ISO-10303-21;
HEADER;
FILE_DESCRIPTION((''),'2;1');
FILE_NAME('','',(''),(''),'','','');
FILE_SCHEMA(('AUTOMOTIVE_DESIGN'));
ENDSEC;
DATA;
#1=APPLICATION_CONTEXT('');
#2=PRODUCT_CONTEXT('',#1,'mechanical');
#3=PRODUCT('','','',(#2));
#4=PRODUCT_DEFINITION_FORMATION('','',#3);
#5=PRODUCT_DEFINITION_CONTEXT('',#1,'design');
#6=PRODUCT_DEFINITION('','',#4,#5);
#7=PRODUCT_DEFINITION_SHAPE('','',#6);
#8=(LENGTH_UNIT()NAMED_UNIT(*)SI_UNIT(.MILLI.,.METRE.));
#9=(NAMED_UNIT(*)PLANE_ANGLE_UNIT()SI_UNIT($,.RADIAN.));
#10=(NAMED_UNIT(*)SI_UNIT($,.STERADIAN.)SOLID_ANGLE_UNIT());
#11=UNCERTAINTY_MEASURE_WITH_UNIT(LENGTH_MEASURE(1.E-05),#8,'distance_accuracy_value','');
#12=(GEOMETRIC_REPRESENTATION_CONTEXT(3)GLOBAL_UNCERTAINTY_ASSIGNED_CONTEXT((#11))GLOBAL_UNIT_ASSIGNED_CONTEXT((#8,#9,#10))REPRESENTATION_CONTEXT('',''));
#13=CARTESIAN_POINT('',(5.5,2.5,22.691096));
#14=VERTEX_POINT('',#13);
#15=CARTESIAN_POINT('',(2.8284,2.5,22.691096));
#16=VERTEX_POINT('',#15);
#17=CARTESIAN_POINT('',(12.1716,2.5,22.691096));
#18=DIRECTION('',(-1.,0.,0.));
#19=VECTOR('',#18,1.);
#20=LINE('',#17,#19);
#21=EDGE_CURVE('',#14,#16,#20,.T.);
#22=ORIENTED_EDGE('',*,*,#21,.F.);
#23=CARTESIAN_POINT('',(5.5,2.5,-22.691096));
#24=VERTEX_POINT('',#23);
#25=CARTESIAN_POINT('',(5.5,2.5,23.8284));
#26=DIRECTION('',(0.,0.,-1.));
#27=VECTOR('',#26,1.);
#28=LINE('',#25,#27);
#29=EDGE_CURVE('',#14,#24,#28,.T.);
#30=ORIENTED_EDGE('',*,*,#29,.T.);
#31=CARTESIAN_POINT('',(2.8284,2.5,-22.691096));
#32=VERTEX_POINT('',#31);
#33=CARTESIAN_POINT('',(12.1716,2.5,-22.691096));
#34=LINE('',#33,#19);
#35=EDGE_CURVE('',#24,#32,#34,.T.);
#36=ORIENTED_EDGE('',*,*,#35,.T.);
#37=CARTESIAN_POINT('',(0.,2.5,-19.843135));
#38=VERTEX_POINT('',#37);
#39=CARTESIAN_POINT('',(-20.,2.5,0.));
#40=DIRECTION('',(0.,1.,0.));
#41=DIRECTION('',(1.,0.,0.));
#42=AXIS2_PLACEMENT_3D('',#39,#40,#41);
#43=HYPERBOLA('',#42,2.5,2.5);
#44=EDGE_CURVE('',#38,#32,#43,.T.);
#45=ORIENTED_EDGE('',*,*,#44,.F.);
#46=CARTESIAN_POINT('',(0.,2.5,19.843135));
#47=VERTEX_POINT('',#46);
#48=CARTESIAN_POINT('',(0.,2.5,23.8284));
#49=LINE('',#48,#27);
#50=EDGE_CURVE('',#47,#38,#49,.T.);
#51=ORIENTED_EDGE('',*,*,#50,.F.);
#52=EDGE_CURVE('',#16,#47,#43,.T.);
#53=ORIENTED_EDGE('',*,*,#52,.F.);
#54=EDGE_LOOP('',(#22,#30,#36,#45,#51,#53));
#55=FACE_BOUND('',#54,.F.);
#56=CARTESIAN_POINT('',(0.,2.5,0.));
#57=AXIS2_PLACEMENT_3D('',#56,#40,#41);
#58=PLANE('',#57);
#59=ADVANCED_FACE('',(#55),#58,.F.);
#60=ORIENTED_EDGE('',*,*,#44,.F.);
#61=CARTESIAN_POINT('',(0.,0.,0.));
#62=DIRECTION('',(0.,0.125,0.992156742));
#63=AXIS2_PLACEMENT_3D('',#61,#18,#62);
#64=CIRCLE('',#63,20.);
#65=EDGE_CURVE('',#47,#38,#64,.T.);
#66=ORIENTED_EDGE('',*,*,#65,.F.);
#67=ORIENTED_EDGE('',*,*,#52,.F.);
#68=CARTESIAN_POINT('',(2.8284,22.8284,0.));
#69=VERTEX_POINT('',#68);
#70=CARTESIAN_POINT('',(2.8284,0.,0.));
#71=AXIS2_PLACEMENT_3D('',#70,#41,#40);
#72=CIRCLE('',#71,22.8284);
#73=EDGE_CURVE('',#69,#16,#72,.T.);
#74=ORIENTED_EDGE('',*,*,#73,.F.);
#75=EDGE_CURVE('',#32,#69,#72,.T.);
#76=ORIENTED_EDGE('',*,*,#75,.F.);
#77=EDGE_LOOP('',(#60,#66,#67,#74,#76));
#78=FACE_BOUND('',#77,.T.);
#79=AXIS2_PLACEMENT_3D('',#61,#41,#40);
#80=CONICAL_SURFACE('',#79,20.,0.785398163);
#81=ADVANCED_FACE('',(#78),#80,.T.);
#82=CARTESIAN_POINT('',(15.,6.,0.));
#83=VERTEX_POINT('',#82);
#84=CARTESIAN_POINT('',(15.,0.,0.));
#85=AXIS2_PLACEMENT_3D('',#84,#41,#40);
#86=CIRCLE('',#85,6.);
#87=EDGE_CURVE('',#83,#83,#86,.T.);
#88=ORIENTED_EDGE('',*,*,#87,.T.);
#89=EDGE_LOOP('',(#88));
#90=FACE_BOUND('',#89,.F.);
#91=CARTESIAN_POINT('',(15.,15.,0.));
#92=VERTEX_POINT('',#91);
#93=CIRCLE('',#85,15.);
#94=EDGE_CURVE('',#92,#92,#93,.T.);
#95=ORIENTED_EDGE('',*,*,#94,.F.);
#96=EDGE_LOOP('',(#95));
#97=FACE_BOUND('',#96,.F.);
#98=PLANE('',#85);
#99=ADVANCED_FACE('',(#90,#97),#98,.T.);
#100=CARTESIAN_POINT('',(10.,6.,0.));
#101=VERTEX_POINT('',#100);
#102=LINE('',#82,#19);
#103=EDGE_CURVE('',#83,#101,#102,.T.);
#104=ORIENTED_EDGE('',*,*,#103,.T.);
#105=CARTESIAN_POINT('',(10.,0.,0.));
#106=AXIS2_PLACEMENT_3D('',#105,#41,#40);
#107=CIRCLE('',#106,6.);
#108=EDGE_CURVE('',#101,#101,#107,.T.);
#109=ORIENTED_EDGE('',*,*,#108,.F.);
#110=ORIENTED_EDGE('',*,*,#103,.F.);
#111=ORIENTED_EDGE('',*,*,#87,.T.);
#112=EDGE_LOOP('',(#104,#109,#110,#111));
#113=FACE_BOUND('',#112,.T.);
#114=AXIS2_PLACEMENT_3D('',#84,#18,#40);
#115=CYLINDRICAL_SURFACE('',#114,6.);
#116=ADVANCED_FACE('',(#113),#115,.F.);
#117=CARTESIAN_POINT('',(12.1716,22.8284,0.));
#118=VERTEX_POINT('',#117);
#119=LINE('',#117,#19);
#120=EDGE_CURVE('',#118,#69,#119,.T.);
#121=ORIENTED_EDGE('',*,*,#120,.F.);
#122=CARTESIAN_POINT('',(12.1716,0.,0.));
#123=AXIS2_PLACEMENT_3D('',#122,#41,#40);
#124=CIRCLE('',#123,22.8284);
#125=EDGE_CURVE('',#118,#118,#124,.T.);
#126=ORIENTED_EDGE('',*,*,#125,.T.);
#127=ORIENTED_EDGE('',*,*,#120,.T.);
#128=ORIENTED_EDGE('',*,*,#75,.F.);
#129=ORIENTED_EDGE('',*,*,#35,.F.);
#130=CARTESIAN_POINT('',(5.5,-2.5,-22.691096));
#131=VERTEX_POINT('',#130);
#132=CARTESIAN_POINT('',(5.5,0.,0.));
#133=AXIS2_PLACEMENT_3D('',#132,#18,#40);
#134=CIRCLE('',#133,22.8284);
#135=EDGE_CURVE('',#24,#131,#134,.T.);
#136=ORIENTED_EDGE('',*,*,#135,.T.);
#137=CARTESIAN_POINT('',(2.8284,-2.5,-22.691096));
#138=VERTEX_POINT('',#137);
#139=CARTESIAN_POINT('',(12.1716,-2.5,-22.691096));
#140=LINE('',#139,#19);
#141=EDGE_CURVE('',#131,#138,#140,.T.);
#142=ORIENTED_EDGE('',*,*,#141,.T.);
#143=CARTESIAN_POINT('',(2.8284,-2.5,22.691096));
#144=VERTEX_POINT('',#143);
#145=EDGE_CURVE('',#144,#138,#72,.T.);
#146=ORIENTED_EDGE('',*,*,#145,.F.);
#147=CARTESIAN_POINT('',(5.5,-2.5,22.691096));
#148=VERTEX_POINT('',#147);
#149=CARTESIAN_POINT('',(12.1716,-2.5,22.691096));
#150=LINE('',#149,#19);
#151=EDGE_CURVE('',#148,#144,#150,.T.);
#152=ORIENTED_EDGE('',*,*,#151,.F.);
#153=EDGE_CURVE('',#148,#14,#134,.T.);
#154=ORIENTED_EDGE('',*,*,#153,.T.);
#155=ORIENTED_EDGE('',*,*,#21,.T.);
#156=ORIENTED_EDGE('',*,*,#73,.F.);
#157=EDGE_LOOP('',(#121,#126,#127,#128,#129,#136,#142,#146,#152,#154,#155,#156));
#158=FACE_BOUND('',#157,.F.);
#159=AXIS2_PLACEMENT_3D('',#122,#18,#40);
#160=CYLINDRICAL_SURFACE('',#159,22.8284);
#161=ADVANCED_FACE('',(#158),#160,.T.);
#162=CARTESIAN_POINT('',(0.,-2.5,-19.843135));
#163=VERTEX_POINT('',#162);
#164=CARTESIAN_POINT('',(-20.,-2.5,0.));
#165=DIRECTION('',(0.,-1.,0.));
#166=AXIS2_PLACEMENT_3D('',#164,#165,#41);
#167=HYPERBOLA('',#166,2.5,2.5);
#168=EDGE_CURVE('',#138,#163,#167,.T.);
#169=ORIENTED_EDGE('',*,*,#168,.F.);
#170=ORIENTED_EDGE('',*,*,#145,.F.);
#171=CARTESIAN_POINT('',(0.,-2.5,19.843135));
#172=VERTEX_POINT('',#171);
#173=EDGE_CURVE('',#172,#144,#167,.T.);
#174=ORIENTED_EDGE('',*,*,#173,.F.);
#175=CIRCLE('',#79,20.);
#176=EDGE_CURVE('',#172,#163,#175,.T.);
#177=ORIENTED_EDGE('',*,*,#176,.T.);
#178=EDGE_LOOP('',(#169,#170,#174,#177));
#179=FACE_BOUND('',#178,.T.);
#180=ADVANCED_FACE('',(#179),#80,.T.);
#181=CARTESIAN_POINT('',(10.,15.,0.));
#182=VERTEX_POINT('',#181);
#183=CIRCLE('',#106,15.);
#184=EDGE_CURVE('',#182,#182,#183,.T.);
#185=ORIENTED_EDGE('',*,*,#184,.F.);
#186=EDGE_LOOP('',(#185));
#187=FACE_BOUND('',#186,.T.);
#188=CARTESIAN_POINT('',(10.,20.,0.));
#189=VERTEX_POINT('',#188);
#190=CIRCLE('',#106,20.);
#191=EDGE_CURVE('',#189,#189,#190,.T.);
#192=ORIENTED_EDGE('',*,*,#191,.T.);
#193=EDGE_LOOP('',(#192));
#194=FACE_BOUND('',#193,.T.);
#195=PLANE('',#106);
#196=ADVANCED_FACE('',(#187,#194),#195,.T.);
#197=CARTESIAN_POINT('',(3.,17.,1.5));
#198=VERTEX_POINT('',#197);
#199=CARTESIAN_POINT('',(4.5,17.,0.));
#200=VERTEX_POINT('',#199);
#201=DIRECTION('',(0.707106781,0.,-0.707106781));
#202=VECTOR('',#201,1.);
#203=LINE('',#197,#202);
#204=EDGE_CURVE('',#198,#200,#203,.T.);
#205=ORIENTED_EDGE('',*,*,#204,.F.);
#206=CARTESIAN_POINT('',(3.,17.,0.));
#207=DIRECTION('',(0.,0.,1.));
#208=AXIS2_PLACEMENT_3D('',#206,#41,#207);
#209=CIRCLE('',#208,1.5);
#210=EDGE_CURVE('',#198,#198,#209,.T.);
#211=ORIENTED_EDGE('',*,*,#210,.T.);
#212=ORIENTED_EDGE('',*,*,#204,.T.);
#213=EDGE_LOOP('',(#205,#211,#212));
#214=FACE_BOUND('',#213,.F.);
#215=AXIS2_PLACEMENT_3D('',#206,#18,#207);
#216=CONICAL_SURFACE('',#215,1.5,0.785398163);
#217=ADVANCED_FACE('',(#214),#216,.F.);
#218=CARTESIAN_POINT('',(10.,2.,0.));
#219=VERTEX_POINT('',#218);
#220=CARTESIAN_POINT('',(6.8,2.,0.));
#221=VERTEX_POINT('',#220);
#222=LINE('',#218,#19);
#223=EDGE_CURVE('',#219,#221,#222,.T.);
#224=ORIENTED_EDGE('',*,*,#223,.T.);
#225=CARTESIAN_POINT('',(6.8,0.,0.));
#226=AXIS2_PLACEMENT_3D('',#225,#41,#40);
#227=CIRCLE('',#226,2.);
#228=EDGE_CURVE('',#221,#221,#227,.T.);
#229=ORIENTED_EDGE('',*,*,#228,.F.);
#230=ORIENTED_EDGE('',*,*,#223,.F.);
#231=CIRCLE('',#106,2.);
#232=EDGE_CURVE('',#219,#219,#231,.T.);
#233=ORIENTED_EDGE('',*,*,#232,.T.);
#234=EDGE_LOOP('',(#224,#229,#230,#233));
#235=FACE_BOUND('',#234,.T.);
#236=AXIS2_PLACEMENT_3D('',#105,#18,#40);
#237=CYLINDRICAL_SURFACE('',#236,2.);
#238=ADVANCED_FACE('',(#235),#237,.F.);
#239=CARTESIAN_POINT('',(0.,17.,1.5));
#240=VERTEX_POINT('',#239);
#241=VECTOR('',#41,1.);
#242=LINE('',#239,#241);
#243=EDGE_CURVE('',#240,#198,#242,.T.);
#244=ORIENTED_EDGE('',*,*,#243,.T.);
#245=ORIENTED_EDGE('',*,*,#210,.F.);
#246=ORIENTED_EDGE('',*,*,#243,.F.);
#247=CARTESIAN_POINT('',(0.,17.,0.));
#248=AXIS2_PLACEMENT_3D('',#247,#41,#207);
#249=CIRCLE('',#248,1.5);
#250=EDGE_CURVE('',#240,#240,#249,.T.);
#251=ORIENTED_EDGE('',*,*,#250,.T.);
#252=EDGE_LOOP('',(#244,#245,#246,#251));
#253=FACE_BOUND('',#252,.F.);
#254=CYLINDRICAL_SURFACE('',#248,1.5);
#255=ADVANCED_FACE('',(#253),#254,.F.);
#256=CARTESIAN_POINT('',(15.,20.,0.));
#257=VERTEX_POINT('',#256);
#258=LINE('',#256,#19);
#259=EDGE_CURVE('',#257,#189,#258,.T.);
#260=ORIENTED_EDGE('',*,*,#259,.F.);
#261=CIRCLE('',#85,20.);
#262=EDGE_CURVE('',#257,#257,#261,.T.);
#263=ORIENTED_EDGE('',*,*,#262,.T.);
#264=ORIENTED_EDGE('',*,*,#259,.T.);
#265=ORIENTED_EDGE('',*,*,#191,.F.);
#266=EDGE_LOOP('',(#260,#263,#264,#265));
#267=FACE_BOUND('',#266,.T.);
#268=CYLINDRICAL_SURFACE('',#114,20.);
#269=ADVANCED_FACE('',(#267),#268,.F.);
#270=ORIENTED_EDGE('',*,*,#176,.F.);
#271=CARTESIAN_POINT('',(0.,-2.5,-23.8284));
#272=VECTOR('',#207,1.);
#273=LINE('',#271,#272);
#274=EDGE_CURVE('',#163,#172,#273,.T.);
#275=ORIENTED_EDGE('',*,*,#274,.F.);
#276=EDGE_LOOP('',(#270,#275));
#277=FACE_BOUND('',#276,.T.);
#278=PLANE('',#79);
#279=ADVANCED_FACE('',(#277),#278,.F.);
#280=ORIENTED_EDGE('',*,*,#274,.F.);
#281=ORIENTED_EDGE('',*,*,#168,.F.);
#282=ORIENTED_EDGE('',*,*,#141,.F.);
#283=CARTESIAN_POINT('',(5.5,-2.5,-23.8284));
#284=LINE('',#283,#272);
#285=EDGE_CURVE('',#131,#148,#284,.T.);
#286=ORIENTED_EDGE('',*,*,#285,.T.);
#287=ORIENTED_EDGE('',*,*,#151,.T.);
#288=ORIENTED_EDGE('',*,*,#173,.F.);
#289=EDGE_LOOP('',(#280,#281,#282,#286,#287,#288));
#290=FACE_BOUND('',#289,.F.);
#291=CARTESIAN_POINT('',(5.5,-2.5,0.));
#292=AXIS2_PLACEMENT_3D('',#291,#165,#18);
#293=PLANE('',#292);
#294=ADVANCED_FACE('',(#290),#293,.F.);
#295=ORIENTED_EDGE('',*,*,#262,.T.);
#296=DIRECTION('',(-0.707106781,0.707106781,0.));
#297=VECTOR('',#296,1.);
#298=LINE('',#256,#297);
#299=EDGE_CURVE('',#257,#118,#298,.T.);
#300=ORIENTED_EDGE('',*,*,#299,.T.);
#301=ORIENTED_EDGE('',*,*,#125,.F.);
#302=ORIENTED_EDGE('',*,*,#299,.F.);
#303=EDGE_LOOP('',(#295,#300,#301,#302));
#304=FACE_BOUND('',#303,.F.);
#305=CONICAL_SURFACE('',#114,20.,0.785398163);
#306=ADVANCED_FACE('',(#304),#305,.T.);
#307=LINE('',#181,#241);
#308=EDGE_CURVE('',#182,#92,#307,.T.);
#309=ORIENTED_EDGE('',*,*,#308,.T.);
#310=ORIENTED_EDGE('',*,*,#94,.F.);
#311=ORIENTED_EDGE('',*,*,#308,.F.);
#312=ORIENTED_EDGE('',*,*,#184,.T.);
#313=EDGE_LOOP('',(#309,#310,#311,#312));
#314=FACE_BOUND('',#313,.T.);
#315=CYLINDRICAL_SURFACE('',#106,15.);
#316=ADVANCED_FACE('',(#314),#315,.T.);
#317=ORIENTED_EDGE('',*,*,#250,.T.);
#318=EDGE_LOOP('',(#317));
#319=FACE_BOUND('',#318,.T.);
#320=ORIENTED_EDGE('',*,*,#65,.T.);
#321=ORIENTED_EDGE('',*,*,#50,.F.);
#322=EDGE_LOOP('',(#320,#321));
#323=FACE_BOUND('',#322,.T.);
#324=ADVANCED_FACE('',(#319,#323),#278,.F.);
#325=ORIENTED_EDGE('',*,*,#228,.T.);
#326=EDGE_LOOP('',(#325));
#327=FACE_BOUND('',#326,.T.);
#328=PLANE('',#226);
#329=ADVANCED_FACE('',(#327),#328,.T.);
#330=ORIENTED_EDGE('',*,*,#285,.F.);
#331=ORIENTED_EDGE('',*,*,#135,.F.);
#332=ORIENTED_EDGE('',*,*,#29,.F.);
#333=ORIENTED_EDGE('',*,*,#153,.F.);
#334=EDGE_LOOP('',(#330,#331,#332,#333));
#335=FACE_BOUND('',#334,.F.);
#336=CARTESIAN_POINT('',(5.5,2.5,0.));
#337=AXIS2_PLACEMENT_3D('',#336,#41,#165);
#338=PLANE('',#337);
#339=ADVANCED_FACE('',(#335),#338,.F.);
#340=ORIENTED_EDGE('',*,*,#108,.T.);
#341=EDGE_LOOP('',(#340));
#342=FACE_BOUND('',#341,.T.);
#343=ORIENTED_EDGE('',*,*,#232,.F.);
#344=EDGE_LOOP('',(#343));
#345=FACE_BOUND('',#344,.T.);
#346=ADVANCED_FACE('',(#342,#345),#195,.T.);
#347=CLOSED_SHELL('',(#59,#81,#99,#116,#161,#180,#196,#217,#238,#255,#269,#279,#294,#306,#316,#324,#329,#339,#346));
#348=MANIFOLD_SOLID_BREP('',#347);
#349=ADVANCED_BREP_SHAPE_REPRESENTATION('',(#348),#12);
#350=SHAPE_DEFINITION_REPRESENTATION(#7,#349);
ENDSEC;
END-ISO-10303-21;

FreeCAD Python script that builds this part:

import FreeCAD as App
import Part
import Sketcher
Q = App.Units.Quantity


def add_polygon(sketch, points):
    """Adds a closed chain of lines whose ends are joined by coincident constraints."""
    first, n = sketch.GeometryCount, len(points)
    for a, b in zip(points, points[1:] + points[:1]):
        sketch.addGeometry(Part.LineSegment(App.Vector(*a, 0), App.Vector(*b, 0)), False)
    for i in range(n):
        sketch.addConstraint(Sketcher.Constraint("Coincident", first + i, 2, first + (i + 1) % n, 1))

doc = App.newDocument("Part")
body = doc.addObject("PartDesign::Body", "Body")

# Sketch on XY plane
sketch1 = doc.addObject("Sketcher::SketchObject", "Sketch")
body.addObject(sketch1)
sketch1.AttachmentSupport = (doc.XY_Plane, [""])
sketch1.MapMode = "FlatFace"
add_polygon(sketch1, [(0, 20), (0, 0), (15, 0), (15, 20), (12.1716, 22.8284), (2.8284, 22.8284)])  # lines 0-5
sketch1.addConstraint([
    Sketcher.Constraint("Vertical", 0),
    Sketcher.Constraint("Horizontal", 1),
    Sketcher.Constraint("Vertical", 2),
    Sketcher.Constraint("Horizontal", 4),
    Sketcher.Constraint("Coincident", 0, 2, -1, 1),
    Sketcher.Constraint("Perpendicular", 3, 5),
    Sketcher.Constraint("Horizontal", 2, 2, 5, 2),
    Sketcher.Constraint("Equal", 3, 5),
    Sketcher.Constraint("DistanceX", 1, 1, 1, 2, Q("15 mm")),
    Sketcher.Constraint("DistanceY", 0, 2, 0, 1, Q("20 mm")),
    Sketcher.Constraint("Distance", 3, Q("4 mm")),
])
revolution = doc.addObject("PartDesign::Revolution", "Revolution")
body.addObject(revolution)
revolution.Profile = sketch1
revolution.ReferenceAxis = (sketch1, ["H_Axis"])
revolution.Angle = 360

# Sketch on XY plane
sketch2 = doc.addObject("Sketcher::SketchObject", "Sketch001")
body.addObject(sketch2)
sketch2.AttachmentSupport = (doc.XY_Plane, [""])
sketch2.MapMode = "FlatFace"
add_polygon(sketch2, [(6.8, 0), (15, 0), (15, 6), (10, 6), (10, 2), (6.8, 2)])  # lines 0-5
add_polygon(sketch2, [(10, 15), (15, 15), (15, 20), (10, 20)])  # lines 6-9
sketch2.addConstraint([
    Sketcher.Constraint("Horizontal", 0),
    Sketcher.Constraint("Vertical", 1),
    Sketcher.Constraint("Horizontal", 2),
    Sketcher.Constraint("Vertical", 3),
    Sketcher.Constraint("Horizontal", 4),
    Sketcher.Constraint("Vertical", 5),
    Sketcher.Constraint("Horizontal", 6),
    Sketcher.Constraint("Vertical", 7),
    Sketcher.Constraint("Horizontal", 8),
    Sketcher.Constraint("Vertical", 9),
    Sketcher.Constraint("PointOnObject", 0, 2, -1),
    Sketcher.Constraint("Vertical", 1, 2, 6, 2),
    Sketcher.Constraint("Vertical", 3, 2, 8, 2),
    Sketcher.Constraint("Equal", 8, 7),
    Sketcher.Constraint("DistanceX", 2, 2, 2, 1, Q("5 mm")),
    Sketcher.Constraint("DistanceY", 1, 1, 1, 2, Q("6 mm")),
    Sketcher.Constraint("DistanceY", 5, 2, 5, 1, Q("2 mm")),
    Sketcher.Constraint("DistanceX", 4, 2, 4, 1, Q("3.2 mm")),
    Sketcher.Constraint("DistanceX", -1, 1, 0, 2, Q("15 mm")),
    Sketcher.Constraint("DistanceY", -1, 1, 6, 2, Q("15 mm")),
])
groove = doc.addObject("PartDesign::Groove", "Groove")
body.addObject(groove)
groove.Profile = sketch2
groove.ReferenceAxis = (sketch2, ["H_Axis"])
groove.Angle = 360

# Sketch on YZ plane
sketch3 = doc.addObject("Sketcher::SketchObject", "Sketch002")
body.addObject(sketch3)
sketch3.AttachmentSupport = (doc.YZ_Plane, [""])
sketch3.MapMode = "FlatFace"
sketch3.addGeometry(Part.Circle(App.Vector(17, 0, 0), App.Vector(0, 0, 1), 1.5), False)
sketch3.addConstraint([
    Sketcher.Constraint("PointOnObject", 0, 3, -1),
    Sketcher.Constraint("Diameter", 0, Q("3 mm")),
    Sketcher.Constraint("DistanceX", -1, 1, 0, 3, Q("17 mm")),
])
doc.recompute()
hole = doc.addObject("PartDesign::Hole", "Hole")
body.addObject(hole)
hole.Profile = sketch3
hole.ThreadType = "None"
hole.Diameter = 3
hole.DepthType = "Dimension"
hole.Depth = 3
hole.DrillPoint = "Angled"
hole.DrillPointAngle = 90
hole.Reversed = True

# Sketch on XY plane
sketch4 = doc.addObject("Sketcher::SketchObject", "Sketch003")
body.addObject(sketch4)
sketch4.AttachmentSupport = (doc.XY_Plane, [""])
sketch4.MapMode = "FlatFace"
add_polygon(sketch4, [(0, 2.5), (0, -2.5), (5.5, -2.5), (5.5, 2.5)])  # lines 0-3
sketch4.addConstraint([
    Sketcher.Constraint("Vertical", 0),
    Sketcher.Constraint("Horizontal", 1),
    Sketcher.Constraint("Vertical", 2),
    Sketcher.Constraint("Horizontal", 3),
    Sketcher.Constraint("Symmetric", 0, 2, 3, 2, -1, 1),
    Sketcher.Constraint("DistanceY", 0, 2, 0, 1, Q("5 mm")),
    Sketcher.Constraint("DistanceX", 1, 1, 1, 2, Q("5.5 mm")),
])
pocket1 = doc.addObject("PartDesign::Pocket", "Pocket")
body.addObject(pocket1)
pocket1.Profile = sketch4
pocket1.Type = "ThroughAll"
pocket1.Midplane = True

doc.recompute()
